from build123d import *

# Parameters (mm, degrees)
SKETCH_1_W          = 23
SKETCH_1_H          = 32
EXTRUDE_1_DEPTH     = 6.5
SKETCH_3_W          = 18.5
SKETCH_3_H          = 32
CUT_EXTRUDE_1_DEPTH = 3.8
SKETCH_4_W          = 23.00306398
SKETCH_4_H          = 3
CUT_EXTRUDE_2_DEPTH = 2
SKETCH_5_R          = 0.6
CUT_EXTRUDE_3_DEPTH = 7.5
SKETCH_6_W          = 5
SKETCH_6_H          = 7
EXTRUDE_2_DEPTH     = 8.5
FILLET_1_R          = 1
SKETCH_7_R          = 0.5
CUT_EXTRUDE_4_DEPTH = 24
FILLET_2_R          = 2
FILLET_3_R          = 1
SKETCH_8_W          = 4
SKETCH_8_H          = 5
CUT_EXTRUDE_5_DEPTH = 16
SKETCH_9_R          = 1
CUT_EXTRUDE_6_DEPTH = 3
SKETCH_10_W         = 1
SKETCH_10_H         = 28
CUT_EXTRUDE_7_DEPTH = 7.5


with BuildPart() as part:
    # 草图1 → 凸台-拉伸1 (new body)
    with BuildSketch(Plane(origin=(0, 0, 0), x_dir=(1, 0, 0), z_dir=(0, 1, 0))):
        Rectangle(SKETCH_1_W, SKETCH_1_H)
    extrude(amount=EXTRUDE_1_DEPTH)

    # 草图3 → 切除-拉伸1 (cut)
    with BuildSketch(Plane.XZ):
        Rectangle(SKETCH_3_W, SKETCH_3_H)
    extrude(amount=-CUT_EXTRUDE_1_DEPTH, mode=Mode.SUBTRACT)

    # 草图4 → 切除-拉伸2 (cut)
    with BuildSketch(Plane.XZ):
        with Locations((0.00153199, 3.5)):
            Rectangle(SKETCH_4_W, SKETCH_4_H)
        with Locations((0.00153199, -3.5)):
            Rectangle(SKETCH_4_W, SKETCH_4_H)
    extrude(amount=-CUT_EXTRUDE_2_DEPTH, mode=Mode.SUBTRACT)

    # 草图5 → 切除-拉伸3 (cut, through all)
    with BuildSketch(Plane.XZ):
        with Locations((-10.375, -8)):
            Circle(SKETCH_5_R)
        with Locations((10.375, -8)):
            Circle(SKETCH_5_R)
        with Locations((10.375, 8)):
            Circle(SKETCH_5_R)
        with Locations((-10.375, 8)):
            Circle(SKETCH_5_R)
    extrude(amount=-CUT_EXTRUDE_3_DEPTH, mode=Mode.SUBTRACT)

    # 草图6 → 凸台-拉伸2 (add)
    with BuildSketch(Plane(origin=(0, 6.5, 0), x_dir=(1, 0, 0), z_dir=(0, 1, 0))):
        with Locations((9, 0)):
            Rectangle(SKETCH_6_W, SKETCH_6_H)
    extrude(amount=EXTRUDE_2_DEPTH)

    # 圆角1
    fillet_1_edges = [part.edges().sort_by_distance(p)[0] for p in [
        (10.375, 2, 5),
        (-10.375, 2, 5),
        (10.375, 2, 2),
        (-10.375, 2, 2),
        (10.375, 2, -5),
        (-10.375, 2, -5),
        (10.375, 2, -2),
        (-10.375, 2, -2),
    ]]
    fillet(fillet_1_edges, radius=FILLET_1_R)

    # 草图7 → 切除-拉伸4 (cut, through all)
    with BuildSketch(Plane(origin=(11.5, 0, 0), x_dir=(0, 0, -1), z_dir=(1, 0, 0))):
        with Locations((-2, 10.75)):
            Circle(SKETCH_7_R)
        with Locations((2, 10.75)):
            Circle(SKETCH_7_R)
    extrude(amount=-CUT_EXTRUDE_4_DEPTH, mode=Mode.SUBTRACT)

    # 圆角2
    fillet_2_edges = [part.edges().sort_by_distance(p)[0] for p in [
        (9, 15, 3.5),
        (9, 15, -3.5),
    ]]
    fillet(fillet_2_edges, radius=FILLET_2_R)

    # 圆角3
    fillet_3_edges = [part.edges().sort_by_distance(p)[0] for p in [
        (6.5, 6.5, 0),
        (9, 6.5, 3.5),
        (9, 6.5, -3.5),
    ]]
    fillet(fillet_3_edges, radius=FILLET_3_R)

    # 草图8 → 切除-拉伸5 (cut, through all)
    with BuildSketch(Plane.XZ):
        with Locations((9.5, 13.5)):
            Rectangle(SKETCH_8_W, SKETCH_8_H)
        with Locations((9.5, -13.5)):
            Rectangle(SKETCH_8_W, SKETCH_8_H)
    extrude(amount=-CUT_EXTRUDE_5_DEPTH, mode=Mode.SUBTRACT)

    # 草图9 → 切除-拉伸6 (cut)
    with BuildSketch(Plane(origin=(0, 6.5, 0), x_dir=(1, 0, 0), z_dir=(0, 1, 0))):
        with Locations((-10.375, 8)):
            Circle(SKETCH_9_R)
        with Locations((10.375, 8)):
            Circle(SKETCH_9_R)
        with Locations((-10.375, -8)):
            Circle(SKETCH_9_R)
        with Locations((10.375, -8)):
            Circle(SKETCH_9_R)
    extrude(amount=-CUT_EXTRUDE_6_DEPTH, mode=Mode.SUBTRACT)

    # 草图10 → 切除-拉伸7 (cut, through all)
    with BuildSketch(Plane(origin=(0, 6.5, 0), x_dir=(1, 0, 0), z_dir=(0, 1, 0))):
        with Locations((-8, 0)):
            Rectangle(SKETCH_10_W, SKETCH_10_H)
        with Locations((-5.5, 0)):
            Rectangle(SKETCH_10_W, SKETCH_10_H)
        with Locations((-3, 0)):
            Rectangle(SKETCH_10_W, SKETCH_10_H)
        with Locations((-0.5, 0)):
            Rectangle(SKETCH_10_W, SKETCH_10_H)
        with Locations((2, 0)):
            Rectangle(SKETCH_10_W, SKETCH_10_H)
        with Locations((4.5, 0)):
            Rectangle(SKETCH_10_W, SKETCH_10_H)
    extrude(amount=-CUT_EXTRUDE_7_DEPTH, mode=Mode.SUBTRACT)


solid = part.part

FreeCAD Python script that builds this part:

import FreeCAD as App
import Part
import Sketcher

V = App.Vector
Q = App.Units.Quantity


def edges_at(feature, points):
    """Names of the edges that pass closest to the given points."""
    edges = feature.Shape.Edges
    near = lambda p: min(range(len(edges)), key=lambda i: edges[i].distToShape(Part.Vertex(*p))[0])
    return sorted({f"Edge{near(p) + 1}" for p in points})

doc = App.newDocument("Part")
body = doc.addObject("PartDesign::Body", "Body")

sketch1 = body.newObject("Sketcher::SketchObject", "Sketch")
sketch1.AttachmentSupport = (doc.getObject("XZ_Plane"), [""])
sketch1.MapMode = "FlatFace"
sketch1.addGeometry(Part.LineSegment(V(-12, -16, 0), V(-12, 16, 0)), False)
sketch1.addGeometry(Part.LineSegment(V(-12, 16, 0), V(12, 16, 0)), False)
sketch1.addGeometry(Part.LineSegment(V(12, 16, 0), V(12, -16, 0)), False)
sketch1.addGeometry(Part.LineSegment(V(12, -16, 0), V(-12, -16, 0)), False)
sketch1.addConstraint(Sketcher.Constraint("Coincident", 0, 2, 1, 1))
sketch1.addConstraint(Sketcher.Constraint("Coincident", 1, 2, 2, 1))
sketch1.addConstraint(Sketcher.Constraint("Coincident", 2, 2, 3, 1))
sketch1.addConstraint(Sketcher.Constraint("Coincident", 3, 2, 0, 1))
sketch1.addConstraint(Sketcher.Constraint("Vertical", 0))
sketch1.addConstraint(Sketcher.Constraint("Horizontal", 1))
sketch1.addConstraint(Sketcher.Constraint("Vertical", 2))
sketch1.addConstraint(Sketcher.Constraint("Horizontal", 3))
sketch1.addConstraint(Sketcher.Constraint("Symmetric", 0, 2, 2, 2, -1, 1))
sketch1.addConstraint(Sketcher.Constraint("DistanceX", 1, 1, 1, 2, Q("23 mm")))
sketch1.addConstraint(Sketcher.Constraint("DistanceY", 0, 1, 0, 2, Q("32 mm")))
pad1 = body.newObject("PartDesign::Pad", "Pad")
pad1.Profile = sketch1
pad1.Length = 6.5
pad1.Reversed = True

sketch2 = body.newObject("Sketcher::SketchObject", "Sketch001")
sketch2.AttachmentSupport = (doc.getObject("XZ_Plane"), [""])
sketch2.MapMode = "FlatFace"
sketch2.addGeometry(Part.LineSegment(V(-9, 16, 0), V(-9, -16, 0)), False)
sketch2.addGeometry(Part.LineSegment(V(-9, -16, 0), V(9, -16, 0)), False)
sketch2.addGeometry(Part.LineSegment(V(9, -16, 0), V(9, 16, 0)), False)
sketch2.addGeometry(Part.LineSegment(V(9, 16, 0), V(-9, 16, 0)), False)
sketch2.addConstraint(Sketcher.Constraint("Coincident", 0, 2, 1, 1))
sketch2.addConstraint(Sketcher.Constraint("Coincident", 1, 2, 2, 1))
sketch2.addConstraint(Sketcher.Constraint("Coincident", 2, 2, 3, 1))
sketch2.addConstraint(Sketcher.Constraint("Coincident", 3, 2, 0, 1))
sketch2.addConstraint(Sketcher.Constraint("Vertical", 0))
sketch2.addConstraint(Sketcher.Constraint("Horizontal", 1))
sketch2.addConstraint(Sketcher.Constraint("Vertical", 2))
sketch2.addConstraint(Sketcher.Constraint("Horizontal", 3))
sketch2.addConstraint(Sketcher.Constraint("Symmetric", 0, 2, 2, 2, -1, 1))
sketch2.addConstraint(Sketcher.Constraint("DistanceY", 0, 2, 0, 1, Q("32 mm")))
sketch2.addConstraint(Sketcher.Constraint("DistanceX", 1, 1, 1, 2, Q("18.5 mm")))
pocket1 = body.newObject("PartDesign::Pocket", "Pocket")
pocket1.Profile = sketch2
pocket1.Length = 3.8

sketch3 = body.newObject("Sketcher::SketchObject", "Sketch002")
sketch3.AttachmentSupport = (doc.getObject("XZ_Plane"), [""])
sketch3.MapMode = "FlatFace"
sketch3.addGeometry(Part.LineSegment(V(-11.5, 5, 0), V(-11.5, 2, 0)), False)
sketch3.addGeometry(Part.LineSegment(V(-11.5, 2, 0), V(11.5, 2, 0)), False)
sketch3.addGeometry(Part.LineSegment(V(11.5, 2, 0), V(11.5, 5, 0)), False)
sketch3.addGeometry(Part.LineSegment(V(11.5, 5, 0), V(-11.5, 5, 0)), False)
sketch3.addGeometry(Part.LineSegment(V(-11.5, -2, 0), V(-11.5, -5, 0)), False)
sketch3.addGeometry(Part.LineSegment(V(-11.5, -5, 0), V(11.5, -5, 0)), False)
sketch3.addGeometry(Part.LineSegment(V(11.5, -5, 0), V(11.5, -2, 0)), False)
sketch3.addGeometry(Part.LineSegment(V(11.5, -2, 0), V(-11.5, -2, 0)), False)
sketch3.addConstraint(Sketcher.Constraint("Coincident", 0, 2, 1, 1))
sketch3.addConstraint(Sketcher.Constraint("Coincident", 1, 2, 2, 1))
sketch3.addConstraint(Sketcher.Constraint("Coincident", 2, 2, 3, 1))
sketch3.addConstraint(Sketcher.Constraint("Coincident", 3, 2, 0, 1))
sketch3.addConstraint(Sketcher.Constraint("Coincident", 4, 2, 5, 1))
sketch3.addConstraint(Sketcher.Constraint("Coincident", 5, 2, 6, 1))
sketch3.addConstraint(Sketcher.Constraint("Coincident", 6, 2, 7, 1))
sketch3.addConstraint(Sketcher.Constraint("Coincident", 7, 2, 4, 1))
sketch3.addConstraint(Sketcher.Constraint("Vertical", 0))
sketch3.addConstraint(Sketcher.Constraint("Horizontal", 1))
sketch3.addConstraint(Sketcher.Constraint("Vertical", 2))
sketch3.addConstraint(Sketcher.Constraint("Horizontal", 3))
sketch3.addConstraint(Sketcher.Constraint("Vertical", 4))
sketch3.addConstraint(Sketcher.Constraint("Horizontal", 5))
sketch3.addConstraint(Sketcher.Constraint("Vertical", 6))
sketch3.addConstraint(Sketcher.Constraint("Horizontal", 7))
sketch3.addConstraint(Sketcher.Constraint("Symmetric", 3, 2, 4, 2, -1))
sketch3.addConstraint(Sketcher.Constraint("Symmetric", 1, 2, 6, 2, -1))
sketch3.addConstraint(Sketcher.Constraint("DistanceY", 0, 2, 0, 1, Q("3 mm")))
sketch3.addConstraint(Sketcher.Constraint("DistanceY", -1, 1, 0, 2, Q("2 mm")))
sketch3.addConstraint(Sketcher.Constraint("DistanceX", 0, 2, -1, 1, Q("11.5 mm")))
sketch3.addConstraint(Sketcher.Constraint("DistanceX", 1, 1, 1, 2, Q("23.003064 mm")))
pocket2 = body.newObject("PartDesign::Pocket", "Pocket001")
pocket2.Profile = sketch3
pocket2.Length = 2

sketch4 = body.newObject("Sketcher::SketchObject", "Sketch003")
sketch4.AttachmentSupport = (doc.getObject("XZ_Plane"), [""])
sketch4.MapMode = "FlatFace"
sketch4.addGeometry(Part.Circle(V(-10.4, -8, 0), V(0, 0, 1), 0.6), False)
sketch4.addGeometry(Part.Circle(V(10.4, -8, 0), V(0, 0, 1), 0.6), False)
sketch4.addGeometry(Part.Circle(V(10.4, 8, 0), V(0, 0, 1), 0.6), False)
sketch4.addGeometry(Part.Circle(V(-10.4, 8, 0), V(0, 0, 1), 0.6), False)
sketch4.addConstraint(Sketcher.Constraint("Equal", 0, 1))
sketch4.addConstraint(Sketcher.Constraint("Equal", 1, 2))
sketch4.addConstraint(Sketcher.Constraint("Equal", 2, 3))
sketch4.addConstraint(Sketcher.Constraint("Symmetric", 0, 3, 2, 3, -1, 1))
sketch4.addConstraint(Sketcher.Constraint("Symmetric", 1, 3, 3, 3, -1, 1))
sketch4.addConstraint(Sketcher.Constraint("Symmetric", 0, 3, 1, 3, -2))
sketch4.addConstraint(Sketcher.Constraint("Diameter", 0, Q("1.2 mm")))
sketch4.addConstraint(Sketcher.Constraint("DistanceY", 0, 3, -1, 1, Q("8 mm")))
sketch4.addConstraint(Sketcher.Constraint("DistanceX", 0, 3, 1, 3, Q("20.75 mm")))
pocket3 = body.newObject("PartDesign::Pocket", "Pocket002")
pocket3.Profile = sketch4
pocket3.Type = "ThroughAll"

sketch5 = body.newObject("Sketcher::SketchObject", "Sketch004")
sketch5.AttachmentSupport = (doc.getObject("XZ_Plane"), [""])
sketch5.MapMode = "FlatFace"
sketch5.AttachmentOffset = App.Placement(V(0, 0, -6.5), App.Rotation())
sketch5.addGeometry(Part.LineSegment(V(6, -4, 0), V(6, 4, 0)), False)
sketch5.addGeometry(Part.LineSegment(V(6, 4, 0), V(12, 4, 0)), False)
sketch5.addGeometry(Part.LineSegment(V(12, 4, 0), V(12, -4, 0)), False)
sketch5.addGeometry(Part.LineSegment(V(12, -4, 0), V(6, -4, 0)), False)
sketch5.addConstraint(Sketcher.Constraint("Coincident", 0, 2, 1, 1))
sketch5.addConstraint(Sketcher.Constraint("Coincident", 1, 2, 2, 1))
sketch5.addConstraint(Sketcher.Constraint("Coincident", 2, 2, 3, 1))
sketch5.addConstraint(Sketcher.Constraint("Coincident", 3, 2, 0, 1))
sketch5.addConstraint(Sketcher.Constraint("Vertical", 0))
sketch5.addConstraint(Sketcher.Constraint("Horizontal", 1))
sketch5.addConstraint(Sketcher.Constraint("Vertical", 2))
sketch5.addConstraint(Sketcher.Constraint("Horizontal", 3))
sketch5.addConstraint(Sketcher.Constraint("DistanceX", 1, 1, 1, 2, Q("5 mm")))
sketch5.addConstraint(Sketcher.Constraint("DistanceY", 0, 1, 0, 2, Q("7 mm")))
sketch5.addConstraint(Sketcher.Constraint("DistanceX", -1, 1, 0, 2, Q("6.5 mm")))
sketch5.addConstraint(Sketcher.Constraint("DistanceY", -1, 1, 0, 2, Q("3.5 mm")))
pad2 = body.newObject("PartDesign::Pad", "Pad001")
pad2.Profile = sketch5
pad2.Length = 8.5
pad2.Reversed = True
doc.recompute()

fillet = body.newObject("PartDesign::Fillet", "Fillet")
fillet.Base = (pad2, edges_at(pad2, [
    (10.375, 2, 5),
    (-10.375, 2, 5),
    (10.375, 2, 2),
    (-10.375, 2, 2),
    (10.375, 2, -5),
    (-10.375, 2, -5),
    (10.375, 2, -2),
    (-10.375, 2, -2),
]))
fillet.Radius = 1

sketch6 = body.newObject("Sketcher::SketchObject", "Sketch005")
sketch6.AttachmentSupport = (doc.getObject("YZ_Plane"), [""])
sketch6.MapMode = "FlatFace"
sketch6.AttachmentOffset = App.Placement(V(0, 0, 11.5), App.Rotation())
sketch6.addGeometry(Part.Circle(V(10.8, 2, 0), V(0, 0, 1), 0.5), False)
sketch6.addGeometry(Part.Circle(V(10.8, -2, 0), V(0, 0, 1), 0.5), False)
sketch6.addConstraint(Sketcher.Constraint("Equal", 0, 1))
sketch6.addConstraint(Sketcher.Constraint("Symmetric", 0, 3, 1, 3, -1))
sketch6.addConstraint(Sketcher.Constraint("Diameter", 0, Q("1 mm")))
sketch6.addConstraint(Sketcher.Constraint("DistanceY", -1, 1, 0, 3, Q("2 mm")))
sketch6.addConstraint(Sketcher.Constraint("DistanceX", -1, 1, 0, 3, Q("10.75 mm")))
pocket4 = body.newObject("PartDesign::Pocket", "Pocket003")
pocket4.Profile = sketch6
pocket4.Type = "ThroughAll"
doc.recompute()

fillet2 = body.newObject("PartDesign::Fillet", "Fillet001")
fillet2.Base = (pocket4, edges_at(pocket4, [(9, 15, 3.5), (9, 15, -3.5)]))
fillet2.Radius = 2
doc.recompute()

fillet3 = body.newObject("PartDesign::Fillet", "Fillet002")
fillet3.Base = (fillet2, edges_at(fillet2, [(6.5, 6.5, 0), (9, 6.5, 3.5), (9, 6.5, -3.5)]))
fillet3.Radius = 1

sketch7 = body.newObject("Sketcher::SketchObject", "Sketch006")
sketch7.AttachmentSupport = (doc.getObject("XZ_Plane"), [""])
sketch7.MapMode = "FlatFace"
sketch7.addGeometry(Part.LineSegment(V(7.5, 16, 0), V(7.5, 11, 0)), False)
sketch7.addGeometry(Part.LineSegment(V(7.5, 11, 0), V(11.5, 11, 0)), False)
sketch7.addGeometry(Part.LineSegment(V(11.5, 11, 0), V(11.5, 16, 0)), False)
sketch7.addGeometry(Part.LineSegment(V(11.5, 16, 0), V(7.5, 16, 0)), False)
sketch7.addGeometry(Part.LineSegment(V(7.5, -11, 0), V(7.5, -16, 0)), False)
sketch7.addGeometry(Part.LineSegment(V(7.5, -16, 0), V(11.5, -16, 0)), False)
sketch7.addGeometry(Part.LineSegment(V(11.5, -16, 0), V(11.5, -11, 0)), False)
sketch7.addGeometry(Part.LineSegment(V(11.5, -11, 0), V(7.5, -11, 0)), False)
sketch7.addConstraint(Sketcher.Constraint("Coincident", 0, 2, 1, 1))
sketch7.addConstraint(Sketcher.Constraint("Coincident", 1, 2, 2, 1))
sketch7.addConstraint(Sketcher.Constraint("Coincident", 2, 2, 3, 1))
sketch7.addConstraint(Sketcher.Constraint("Coincident", 3, 2, 0, 1))
sketch7.addConstraint(Sketcher.Constraint("Coincident", 4, 2, 5, 1))
sketch7.addConstraint(Sketcher.Constraint("Coincident", 5, 2, 6, 1))
sketch7.addConstraint(Sketcher.Constraint("Coincident", 6, 2, 7, 1))
sketch7.addConstraint(Sketcher.Constraint("Coincident", 7, 2, 4, 1))
sketch7.addConstraint(Sketcher.Constraint("Vertical", 0))
sketch7.addConstraint(Sketcher.Constraint("Horizontal", 1))
sketch7.addConstraint(Sketcher.Constraint("Vertical", 2))
sketch7.addConstraint(Sketcher.Constraint("Horizontal", 3))
sketch7.addConstraint(Sketcher.Constraint("Vertical", 4))
sketch7.addConstraint(Sketcher.Constraint("Horizontal", 5))
sketch7.addConstraint(Sketcher.Constraint("Vertical", 6))
sketch7.addConstraint(Sketcher.Constraint("Horizontal", 7))
sketch7.addConstraint(Sketcher.Constraint("Symmetric", 3, 2, 4, 2, -1))
sketch7.addConstraint(Sketcher.Constraint("Symmetric", 1, 2, 6, 2, -1))
sketch7.addConstraint(Sketcher.Constraint("DistanceX", 1, 1, 1, 2, Q("4 mm")))
sketch7.addConstraint(Sketcher.Constraint("DistanceY", 0, 2, 0, 1, Q("5 mm")))
sketch7.addConstraint(Sketcher.Constraint("DistanceY", -1, 1, 0, 2, Q("11 mm")))
sketch7.addConstraint(Sketcher.Constraint("DistanceX", -1, 1, 0, 2, Q("7.5 mm")))
pocket5 = body.newObject("PartDesign::Pocket", "Pocket004")
pocket5.Profile = sketch7
pocket5.Type = "ThroughAll"

sketch8 = body.newObject("Sketcher::SketchObject", "Sketch007")
sketch8.AttachmentSupport = (doc.getObject("XZ_Plane"), [""])
sketch8.MapMode = "FlatFace"
sketch8.AttachmentOffset = App.Placement(V(0, 0, -6.5), App.Rotation())
sketch8.addGeometry(Part.Circle(V(-10.4, -8, 0), V(0, 0, 1), 1), False)
sketch8.addGeometry(Part.Circle(V(10.4, -8, 0), V(0, 0, 1), 1), False)
sketch8.addGeometry(Part.Circle(V(-10.4, 8, 0), V(0, 0, 1), 1), False)
sketch8.addGeometry(Part.Circle(V(10.4, 8, 0), V(0, 0, 1), 1), False)
sketch8.addConstraint(Sketcher.Constraint("Equal", 0, 1))
sketch8.addConstraint(Sketcher.Constraint("Equal", 1, 2))
sketch8.addConstraint(Sketcher.Constraint("Equal", 2, 3))
sketch8.addConstraint(Sketcher.Constraint("Symmetric", 1, 3, 2, 3, -1, 1))
sketch8.addConstraint(Sketcher.Constraint("Symmetric", 0, 3, 3, 3, -1, 1))
sketch8.addConstraint(Sketcher.Constraint("Symmetric", 0, 3, 1, 3, -2))
sketch8.addConstraint(Sketcher.Constraint("Diameter", 0, Q("2 mm")))
sketch8.addConstraint(Sketcher.Constraint("DistanceY", 0, 3, -1, 1, Q("8 mm")))
sketch8.addConstraint(Sketcher.Constraint("DistanceX", 0, 3, 1, 3, Q("20.75 mm")))
pocket6 = body.newObject("PartDesign::Pocket", "Pocket005")
pocket6.Profile = sketch8
pocket6.Length = 3
pocket6.Reversed = True

sketch9 = body.newObject("Sketcher::SketchObject", "Sketch008")
sketch9.AttachmentSupport = (doc.getObject("XZ_Plane"), [""])
sketch9.MapMode = "FlatFace"
sketch9.AttachmentOffset = App.Placement(V(0, 0, -6.5), App.Rotation())
sketch9.addGeometry(Part.LineSegment(V(-8.5, -14, 0), V(-8.5, 14, 0)), False)
sketch9.addGeometry(Part.LineSegment(V(-8.5, 14, 0), V(-7.5, 14, 0)), False)
sketch9.addGeometry(Part.LineSegment(V(-7.5, 14, 0), V(-7.5, -14, 0)), False)
sketch9.addGeometry(Part.LineSegment(V(-7.5, -14, 0), V(-8.5, -14, 0)), False)
sketch9.addGeometry(Part.LineSegment(V(-6, -14, 0), V(-6, 14, 0)), False)
sketch9.addGeometry(Part.LineSegment(V(-6, 14, 0), V(-5, 14, 0)), False)
sketch9.addGeometry(Part.LineSegment(V(-5, 14, 0), V(-5, -14, 0)), False)
sketch9.addGeometry(Part.LineSegment(V(-5, -14, 0), V(-6, -14, 0)), False)
sketch9.addGeometry(Part.LineSegment(V(-3.5, -14, 0), V(-3.5, 14, 0)), False)
sketch9.addGeometry(Part.LineSegment(V(-3.5, 14, 0), V(-2.5, 14, 0)), False)
sketch9.addGeometry(Part.LineSegment(V(-2.5, 14, 0), V(-2.5, -14, 0)), False)
sketch9.addGeometry(Part.LineSegment(V(-2.5, -14, 0), V(-3.5, -14, 0)), False)
sketch9.addGeometry(Part.LineSegment(V(-1, -14, 0), V(-1, 14, 0)), False)
sketch9.addGeometry(Part.LineSegment(V(-1, 14, 0), V(0, 14, 0)), False)
sketch9.addGeometry(Part.LineSegment(V(0, 14, 0), V(0, -14, 0)), False)
sketch9.addGeometry(Part.LineSegment(V(0, -14, 0), V(-1, -14, 0)), False)
sketch9.addGeometry(Part.LineSegment(V(1.5, -14, 0), V(1.5, 14, 0)), False)
sketch9.addGeometry(Part.LineSegment(V(1.5, 14, 0), V(2.5, 14, 0)), False)
sketch9.addGeometry(Part.LineSegment(V(2.5, 14, 0), V(2.5, -14, 0)), False)
sketch9.addGeometry(Part.LineSegment(V(2.5, -14, 0), V(1.5, -14, 0)), False)
sketch9.addGeometry(Part.LineSegment(V(4, -14, 0), V(4, 14, 0)), False)
sketch9.addGeometry(Part.LineSegment(V(4, 14, 0), V(5, 14, 0)), False)
sketch9.addGeometry(Part.LineSegment(V(5, 14, 0), V(5, -14, 0)), False)
sketch9.addGeometry(Part.LineSegment(V(5, -14, 0), V(4, -14, 0)), False)
sketch9.addConstraint(Sketcher.Constraint("Coincident", 0, 2, 1, 1))
sketch9.addConstraint(Sketcher.Constraint("Coincident", 1, 2, 2, 1))
sketch9.addConstraint(Sketcher.Constraint("Coincident", 2, 2, 3, 1))
sketch9.addConstraint(Sketcher.Constraint("Coincident", 3, 2, 0, 1))
sketch9.addConstraint(Sketcher.Constraint("Coincident", 4, 2, 5, 1))
sketch9.addConstraint(Sketcher.Constraint("Coincident", 5, 2, 6, 1))
sketch9.addConstraint(Sketcher.Constraint("Coincident", 6, 2, 7, 1))
sketch9.addConstraint(Sketcher.Constraint("Coincident", 7, 2, 4, 1))
sketch9.addConstraint(Sketcher.Constraint("Coincident", 8, 2, 9, 1))
sketch9.addConstraint(Sketcher.Constraint("Coincident", 9, 2, 10, 1))
sketch9.addConstraint(Sketcher.Constraint("Coincident", 10, 2, 11, 1))
sketch9.addConstraint(Sketcher.Constraint("Coincident", 11, 2, 8, 1))
sketch9.addConstraint(Sketcher.Constraint("Coincident", 12, 2, 13, 1))
sketch9.addConstraint(Sketcher.Constraint("Coincident", 13, 2, 14, 1))
sketch9.addConstraint(Sketcher.Constraint("Coincident", 14, 2, 15, 1))
sketch9.addConstraint(Sketcher.Constraint("Coincident", 15, 2, 12, 1))
sketch9.addConstraint(Sketcher.Constraint("Coincident", 16, 2, 17, 1))
sketch9.addConstraint(Sketcher.Constraint("Coincident", 17, 2, 18, 1))
sketch9.addConstraint(Sketcher.Constraint("Coincident", 18, 2, 19, 1))
sketch9.addConstraint(Sketcher.Constraint("Coincident", 19, 2, 16, 1))
sketch9.addConstraint(Sketcher.Constraint("Coincident", 20, 2, 21, 1))
sketch9.addConstraint(Sketcher.Constraint("Coincident", 21, 2, 22, 1))
sketch9.addConstraint(Sketcher.Constraint("Coincident", 22, 2, 23, 1))
sketch9.addConstraint(Sketcher.Constraint("Coincident", 23, 2, 20, 1))
sketch9.addConstraint(Sketcher.Constraint("Vertical", 0))
sketch9.addConstraint(Sketcher.Constraint("Horizontal", 1))
sketch9.addConstraint(Sketcher.Constraint("Vertical", 2))
sketch9.addConstraint(Sketcher.Constraint("Horizontal", 3))
sketch9.addConstraint(Sketcher.Constraint("Vertical", 4))
sketch9.addConstraint(Sketcher.Constraint("Horizontal", 5))
sketch9.addConstraint(Sketcher.Constraint("Vertical", 6))
sketch9.addConstraint(Sketcher.Constraint("Horizontal", 7))
sketch9.addConstraint(Sketcher.Constraint("Vertical", 8))
sketch9.addConstraint(Sketcher.Constraint("Horizontal", 9))
sketch9.addConstraint(Sketcher.Constraint("Vertical", 10))
sketch9.addConstraint(Sketcher.Constraint("Horizontal", 11))
sketch9.addConstraint(Sketcher.Constraint("Vertical", 12))
sketch9.addConstraint(Sketcher.Constraint("Horizontal", 13))
sketch9.addConstraint(Sketcher.Constraint("Vertical", 14))
sketch9.addConstraint(Sketcher.Constraint("Horizontal", 15))
sketch9.addConstraint(Sketcher.Constraint("Vertical", 16))
sketch9.addConstraint(Sketcher.Constraint("Horizontal", 17))
sketch9.addConstraint(Sketcher.Constraint("Vertical", 18))
sketch9.addConstraint(Sketcher.Constraint("Horizontal", 19))
sketch9.addConstraint(Sketcher.Constraint("Vertical", 20))
sketch9.addConstraint(Sketcher.Constraint("Horizontal", 21))
sketch9.addConstraint(Sketcher.Constraint("Vertical", 22))
sketch9.addConstraint(Sketcher.Constraint("Horizontal", 23))
sketch9.addConstraint(Sketcher.Constraint("Symmetric", 13, 2, 14, 2, -1, 1))
sketch9.addConstraint(Sketcher.Constraint("Symmetric", 10, 2, 17, 2, -1, 1))
sketch9.addConstraint(Sketcher.Constraint("Symmetric", 6, 2, 21, 2, -1, 1))
sketch9.addConstraint(Sketcher.Constraint("Horizontal", 1, 2, 4, 2))
sketch9.addConstraint(Sketcher.Constraint("Horizontal", 3, 2, 6, 2))
sketch9.addConstraint(Sketcher.Constraint("Horizontal", 5, 2, 8, 2))
sketch9.addConstraint(Sketcher.Constraint("Horizontal", 7, 2, 10, 2))
sketch9.addConstraint(Sketcher.Constraint("Horizontal", 9, 2, 12, 2))
sketch9.addConstraint(Sketcher.Constraint("Horizontal", 11, 2, 14, 2))
sketch9.addConstraint(Sketcher.Constraint("Horizontal", 15, 2, 18, 2))
sketch9.addConstraint(Sketcher.Constraint("Horizontal", 19, 2, 22, 2))
sketch9.addConstraint(Sketcher.Constraint("Equal", 3, 5))
sketch9.addConstraint(Sketcher.Constraint("Equal", 7, 9))
sketch9.addConstraint(Sketcher.Constraint("Equal", 11, 13))
sketch9.addConstraint(Sketcher.Constraint("Equal", 15, 17))
sketch9.addConstraint(Sketcher.Constraint("Equal", 19, 21))
sketch9.addConstraint(Sketcher.Constraint("DistanceX", 1, 1, 1, 2, Q("1 mm")))
sketch9.addConstraint(Sketcher.Constraint("DistanceY", 0, 1, 0, 2, Q("28 mm")))
sketch9.addConstraint(Sketcher.Constraint("DistanceX", 4, 2, -1, 1, Q("6 mm")))
sketch9.addConstraint(Sketcher.Constraint("DistanceX", 1, 2, 8, 2, Q("4 mm")))
sketch9.addConstraint(Sketcher.Constraint("DistanceX", 9, 2, 16, 2, Q("4 mm")))
pocket7 = body.newObject("PartDesign::Pocket", "Pocket006")
pocket7.Profile = sketch9
pocket7.Type = "ThroughAll"
pocket7.Reversed = True

doc.recompute()
